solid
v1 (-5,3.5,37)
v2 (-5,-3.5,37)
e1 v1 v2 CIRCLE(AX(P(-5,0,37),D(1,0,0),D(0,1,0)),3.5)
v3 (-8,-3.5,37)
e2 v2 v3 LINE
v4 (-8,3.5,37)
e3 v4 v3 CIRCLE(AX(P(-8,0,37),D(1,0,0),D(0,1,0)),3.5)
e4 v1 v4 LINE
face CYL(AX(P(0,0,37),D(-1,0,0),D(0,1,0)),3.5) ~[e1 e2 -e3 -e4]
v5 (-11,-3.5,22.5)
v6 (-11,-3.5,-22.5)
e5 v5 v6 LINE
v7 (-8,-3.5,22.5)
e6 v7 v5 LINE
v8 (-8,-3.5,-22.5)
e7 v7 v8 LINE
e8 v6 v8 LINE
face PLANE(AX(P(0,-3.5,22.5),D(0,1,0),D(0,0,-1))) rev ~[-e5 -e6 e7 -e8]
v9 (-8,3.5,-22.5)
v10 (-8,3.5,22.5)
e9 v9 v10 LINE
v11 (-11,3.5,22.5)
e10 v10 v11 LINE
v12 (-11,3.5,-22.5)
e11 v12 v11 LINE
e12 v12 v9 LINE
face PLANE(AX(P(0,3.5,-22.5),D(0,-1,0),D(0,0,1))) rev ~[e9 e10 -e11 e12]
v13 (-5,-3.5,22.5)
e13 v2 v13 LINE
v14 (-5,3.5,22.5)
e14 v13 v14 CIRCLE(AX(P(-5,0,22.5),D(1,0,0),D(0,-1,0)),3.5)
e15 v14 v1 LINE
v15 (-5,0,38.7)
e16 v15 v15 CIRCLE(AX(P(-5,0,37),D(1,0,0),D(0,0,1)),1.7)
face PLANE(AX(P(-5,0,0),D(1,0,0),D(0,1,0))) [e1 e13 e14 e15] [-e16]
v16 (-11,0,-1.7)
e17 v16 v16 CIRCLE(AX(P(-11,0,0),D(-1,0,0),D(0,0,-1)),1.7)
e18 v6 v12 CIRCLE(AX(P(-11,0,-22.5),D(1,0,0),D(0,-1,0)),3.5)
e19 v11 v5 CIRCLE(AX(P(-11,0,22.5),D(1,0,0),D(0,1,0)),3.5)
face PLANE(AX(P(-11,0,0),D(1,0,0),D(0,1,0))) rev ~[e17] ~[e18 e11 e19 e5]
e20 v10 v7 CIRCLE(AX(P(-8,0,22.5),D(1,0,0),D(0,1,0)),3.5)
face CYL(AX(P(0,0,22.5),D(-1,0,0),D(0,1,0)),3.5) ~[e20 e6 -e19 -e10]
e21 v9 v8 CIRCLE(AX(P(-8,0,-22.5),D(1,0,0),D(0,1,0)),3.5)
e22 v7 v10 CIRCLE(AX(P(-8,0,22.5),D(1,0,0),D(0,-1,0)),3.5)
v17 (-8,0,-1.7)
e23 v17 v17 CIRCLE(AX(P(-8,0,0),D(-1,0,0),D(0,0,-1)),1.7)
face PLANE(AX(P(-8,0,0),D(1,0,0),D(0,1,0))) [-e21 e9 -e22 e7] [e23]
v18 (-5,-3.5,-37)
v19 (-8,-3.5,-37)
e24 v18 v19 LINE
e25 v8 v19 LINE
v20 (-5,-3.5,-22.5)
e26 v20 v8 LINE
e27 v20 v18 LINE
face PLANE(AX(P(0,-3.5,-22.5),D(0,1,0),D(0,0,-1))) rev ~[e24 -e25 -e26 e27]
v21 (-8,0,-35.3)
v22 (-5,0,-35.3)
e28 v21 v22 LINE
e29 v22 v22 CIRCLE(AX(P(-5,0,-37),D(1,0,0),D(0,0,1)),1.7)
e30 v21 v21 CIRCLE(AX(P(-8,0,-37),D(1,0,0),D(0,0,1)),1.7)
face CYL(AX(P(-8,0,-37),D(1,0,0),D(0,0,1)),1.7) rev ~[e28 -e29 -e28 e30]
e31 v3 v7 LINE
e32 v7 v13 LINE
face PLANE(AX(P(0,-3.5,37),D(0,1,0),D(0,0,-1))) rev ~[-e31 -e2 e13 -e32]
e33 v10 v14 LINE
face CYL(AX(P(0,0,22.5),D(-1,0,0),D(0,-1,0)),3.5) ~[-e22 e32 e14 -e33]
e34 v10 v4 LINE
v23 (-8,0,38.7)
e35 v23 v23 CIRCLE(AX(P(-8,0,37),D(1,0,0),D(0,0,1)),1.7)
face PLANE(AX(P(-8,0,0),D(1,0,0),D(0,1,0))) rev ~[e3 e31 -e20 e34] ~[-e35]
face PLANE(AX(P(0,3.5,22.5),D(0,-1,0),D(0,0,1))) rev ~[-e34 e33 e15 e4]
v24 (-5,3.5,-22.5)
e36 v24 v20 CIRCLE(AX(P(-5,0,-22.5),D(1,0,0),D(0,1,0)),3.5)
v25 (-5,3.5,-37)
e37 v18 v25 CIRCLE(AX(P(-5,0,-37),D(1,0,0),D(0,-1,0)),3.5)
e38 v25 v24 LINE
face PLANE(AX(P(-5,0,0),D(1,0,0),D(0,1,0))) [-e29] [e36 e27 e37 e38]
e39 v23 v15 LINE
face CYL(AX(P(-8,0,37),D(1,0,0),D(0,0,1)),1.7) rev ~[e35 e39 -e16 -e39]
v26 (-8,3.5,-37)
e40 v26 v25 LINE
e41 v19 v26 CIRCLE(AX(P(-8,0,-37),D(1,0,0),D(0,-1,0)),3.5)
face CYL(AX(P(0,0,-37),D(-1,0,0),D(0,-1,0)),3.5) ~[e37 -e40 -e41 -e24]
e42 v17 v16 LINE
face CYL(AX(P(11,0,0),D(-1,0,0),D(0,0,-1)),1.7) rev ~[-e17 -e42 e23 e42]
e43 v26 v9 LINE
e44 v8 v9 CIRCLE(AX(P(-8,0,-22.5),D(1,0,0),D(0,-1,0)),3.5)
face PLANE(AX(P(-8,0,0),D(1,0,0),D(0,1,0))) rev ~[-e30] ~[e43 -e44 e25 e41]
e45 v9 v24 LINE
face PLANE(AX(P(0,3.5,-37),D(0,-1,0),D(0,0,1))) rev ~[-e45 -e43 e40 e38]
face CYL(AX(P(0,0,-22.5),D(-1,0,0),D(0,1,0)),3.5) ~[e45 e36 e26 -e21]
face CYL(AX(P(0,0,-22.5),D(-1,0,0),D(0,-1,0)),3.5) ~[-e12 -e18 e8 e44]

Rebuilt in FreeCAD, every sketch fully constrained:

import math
import FreeCAD as App
import Part
import Sketcher

doc = App.newDocument("Part")
body = doc.addObject("PartDesign::Body", "Body")
body.AllowCompound = True

# Sketch on YZ plane
sketch1 = body.newObject("Sketcher::SketchObject", "Sketch")
sketch1.AttachmentSupport = (doc.getObject("YZ_Plane"), [""])
sketch1.MapMode = "FlatFace"
sketch1.addGeometry([
    Part.LineSegment(App.Vector(-3.5, 22.5, 0), App.Vector(-3.5, -22.5, 0)),
    Part.ArcOfCircle(Part.Circle(App.Vector(0, -22.5, 0), App.Vector(0, 0, 1), 3.5), math.radians(180), math.radians(360)),
    Part.LineSegment(App.Vector(3.5, -22.5, 0), App.Vector(3.5, 22.5, 0)),
    Part.ArcOfCircle(Part.Circle(App.Vector(0, 22.5, 0), App.Vector(0, 0, 1), 3.5), math.radians(0), math.radians(180)),
], False)
sketch1.addConstraint([
    Sketcher.Constraint("Tangent", 0, 2, 1, 1),
    Sketcher.Constraint("Tangent", 1, 2, 2, 1),
    Sketcher.Constraint("Tangent", 2, 2, 3, 1),
    Sketcher.Constraint("Tangent", 3, 2, 0, 1),
    Sketcher.Constraint("Vertical", 0),
    Sketcher.Constraint("Vertical", 2),
    Sketcher.Constraint("Symmetric", 1, 3, 3, 3, -1, 1),
    Sketcher.Constraint("Radius", 1, 3.5),
    Sketcher.Constraint("DistanceY", 0, 2, 0, 1, 45.0),
])
pad1 = body.newObject("PartDesign::Pad", "Pad")
pad1.Profile = sketch1
pad1.Length = 22
pad1.Midplane = True

# Sketch on YZ plane
sketch2 = body.newObject("Sketcher::SketchObject", "Sketch001")
sketch2.AttachmentSupport = (doc.getObject("YZ_Plane"), [""])
sketch2.MapMode = "FlatFace"
sketch2.addGeometry([
    Part.LineSegment(App.Vector(-3.5, 22.5, 0), App.Vector(-3.5, -22.5, 0)),
    Part.ArcOfCircle(Part.Circle(App.Vector(0, -22.5, 0), App.Vector(0, 0, 1), 3.5), math.radians(180), math.radians(360)),
    Part.LineSegment(App.Vector(3.5, -22.5, 0), App.Vector(3.5, 22.5, 0)),
    Part.ArcOfCircle(Part.Circle(App.Vector(0, 22.5, 0), App.Vector(0, 0, 1), 3.5), math.radians(0), math.radians(180)),
], False)
sketch2.addConstraint([
    Sketcher.Constraint("Tangent", 0, 2, 1, 1),
    Sketcher.Constraint("Tangent", 1, 2, 2, 1),
    Sketcher.Constraint("Tangent", 2, 2, 3, 1),
    Sketcher.Constraint("Tangent", 3, 2, 0, 1),
    Sketcher.Constraint("Vertical", 0),
    Sketcher.Constraint("Vertical", 2),
    Sketcher.Constraint("Symmetric", 1, 3, 3, 3, -1, 1),
    Sketcher.Constraint("Radius", 1, 3.5),
    Sketcher.Constraint("DistanceY", 0, 2, 0, 1, 45.0),
])
pocket1 = body.newObject("PartDesign::Pocket", "Pocket")
pocket1.Profile = sketch2
pocket1.Length = 16
pocket1.Midplane = True

# Sketch on YZ plane
sketch3 = body.newObject("Sketcher::SketchObject", "Sketch002")
sketch3.AttachmentSupport = (doc.getObject("YZ_Plane"), [""])
sketch3.MapMode = "FlatFace"
sketch3.addGeometry([
    Part.ArcOfCircle(Part.Circle(App.Vector(0, -37, 0), App.Vector(0, 0, 1), 3.5), math.radians(180), math.radians(360)),  # 0
    Part.LineSegment(App.Vector(3.5, -37, 0), App.Vector(3.5, -22.5, 0)),  # 1
    Part.ArcOfCircle(Part.Circle(App.Vector(0, -22.5, 0), App.Vector(0, 0, 1), 3.5), math.radians(0), math.radians(180)),  # 2
    Part.LineSegment(App.Vector(-3.5, -22.5, 0), App.Vector(-3.5, -37, 0)),  # 3
    Part.LineSegment(App.Vector(-3.5, 37, 0), App.Vector(-3.5, 22.5, 0)),  # 4
    Part.ArcOfCircle(Part.Circle(App.Vector(0, 22.5, 0), App.Vector(0, 0, 1), 3.5), math.radians(180), math.radians(360)),  # 5
    Part.LineSegment(App.Vector(3.5, 22.5, 0), App.Vector(3.5, 37, 0)),  # 6
    Part.ArcOfCircle(Part.Circle(App.Vector(0, 37, 0), App.Vector(0, 0, 1), 3.5), math.radians(0), math.radians(180)),  # 7
], False)
sketch3.addConstraint([
    Sketcher.Constraint("Tangent", 0, 2, 1, 1),
    Sketcher.Constraint("Tangent", 1, 2, 2, 1),
    Sketcher.Constraint("Tangent", 2, 2, 3, 1),
    Sketcher.Constraint("Tangent", 3, 2, 0, 1),
    Sketcher.Constraint("Tangent", 4, 2, 5, 1),
    Sketcher.Constraint("Tangent", 5, 2, 6, 1),
    Sketcher.Constraint("Tangent", 6, 2, 7, 1),
    Sketcher.Constraint("Tangent", 7, 2, 4, 1),
    Sketcher.Constraint("Vertical", 1),
    Sketcher.Constraint("Vertical", 3),
    Sketcher.Constraint("Vertical", 4),
    Sketcher.Constraint("Vertical", 6),
    Sketcher.Constraint("Equal", 2, 5),
    Sketcher.Constraint("Symmetric", 2, 3, 5, 3, -1, 1),
    Sketcher.Constraint("Symmetric", 0, 3, 7, 3, -1),
    Sketcher.Constraint("Radius", 0, 3.5),
    Sketcher.Constraint("DistanceY", 2, 3, 5, 3, 45.0),
    Sketcher.Constraint("DistanceY", 1, 1, 1, 2, 14.5),
])
pad2 = body.newObject("PartDesign::Pad", "Pad001")
pad2.Profile = sketch3
pad2.Length = 16
pad2.Midplane = True

# Sketch on YZ plane
sketch4 = body.newObject("Sketcher::SketchObject", "Sketch003")
sketch4.AttachmentSupport = (doc.getObject("YZ_Plane"), [""])
sketch4.MapMode = "FlatFace"
sketch4.addGeometry([
    Part.ArcOfCircle(Part.Circle(App.Vector(0, -37, 0), App.Vector(0, 0, 1), 3.5), math.radians(180), math.radians(360)),  # 0
    Part.LineSegment(App.Vector(3.5, -37, 0), App.Vector(3.5, -22.5, 0)),  # 1
    Part.ArcOfCircle(Part.Circle(App.Vector(0, -22.5, 0), App.Vector(0, 0, 1), 3.5), math.radians(0), math.radians(180)),  # 2
    Part.LineSegment(App.Vector(-3.5, -22.5, 0), App.Vector(-3.5, -37, 0)),  # 3
    Part.LineSegment(App.Vector(-3.5, 37, 0), App.Vector(-3.5, 22.5, 0)),  # 4
    Part.ArcOfCircle(Part.Circle(App.Vector(0, 22.5, 0), App.Vector(0, 0, 1), 3.5), math.radians(180), math.radians(360)),  # 5
    Part.LineSegment(App.Vector(3.5, 22.5, 0), App.Vector(3.5, 37, 0)),  # 6
    Part.ArcOfCircle(Part.Circle(App.Vector(0, 37, 0), App.Vector(0, 0, 1), 3.5), math.radians(0), math.radians(180)),  # 7
], False)
sketch4.addConstraint([
    Sketcher.Constraint("Tangent", 0, 2, 1, 1),
    Sketcher.Constraint("Tangent", 1, 2, 2, 1),
    Sketcher.Constraint("Tangent", 2, 2, 3, 1),
    Sketcher.Constraint("Tangent", 3, 2, 0, 1),
    Sketcher.Constraint("Tangent", 4, 2, 5, 1),
    Sketcher.Constraint("Tangent", 5, 2, 6, 1),
    Sketcher.Constraint("Tangent", 6, 2, 7, 1),
    Sketcher.Constraint("Tangent", 7, 2, 4, 1),
    Sketcher.Constraint("Vertical", 1),
    Sketcher.Constraint("Vertical", 3),
    Sketcher.Constraint("Vertical", 4),
    Sketcher.Constraint("Vertical", 6),
    Sketcher.Constraint("Equal", 2, 5),
    Sketcher.Constraint("Symmetric", 2, 3, 5, 3, -1, 1),
    Sketcher.Constraint("Symmetric", 0, 3, 7, 3, -1),
    Sketcher.Constraint("Radius", 0, 3.5),
    Sketcher.Constraint("DistanceY", 2, 3, 5, 3, 45.0),
    Sketcher.Constraint("DistanceY", 1, 1, 1, 2, 14.5),
])
pocket2 = body.newObject("PartDesign::Pocket", "Pocket001")
pocket2.Profile = sketch4
pocket2.Length = 10
pocket2.Midplane = True

# Sketch on YZ plane
sketch5 = body.newObject("Sketcher::SketchObject", "Sketch004")
sketch5.AttachmentSupport = (doc.getObject("YZ_Plane"), [""])
sketch5.MapMode = "FlatFace"
sketch5.AttachmentOffset = App.Placement(App.Vector(0, 0, -8), App.Rotation())
sketch5.addGeometry([
    Part.Circle(App.Vector(0, -37, 0), App.Vector(0, 0, 1), 1.7),
    Part.Circle(App.Vector(0, 37, 0), App.Vector(0, 0, 1), 1.7),
], False)
sketch5.addConstraint([
    Sketcher.Constraint("Equal", 0, 1),
    Sketcher.Constraint("Symmetric", 0, 3, 1, 3, -1, 1),
    Sketcher.Constraint("PointOnObject", 0, 3, -2),
    Sketcher.Constraint("Diameter", 0, 3.4),
    Sketcher.Constraint("DistanceY", 0, 3, -1, 1, 37.0),
])
doc.recompute()
hole = body.newObject("PartDesign::Hole", "Hole")
hole.Profile = sketch5
hole.ThreadType = "None"
hole.Diameter = 3.4
hole.DepthType = "ThroughAll"
hole.Reversed = True

# Sketch on YZ plane
sketch6 = body.newObject("Sketcher::SketchObject", "Sketch005")
sketch6.AttachmentSupport = (doc.getObject("YZ_Plane"), [""])
sketch6.MapMode = "FlatFace"
sketch6.AttachmentOffset = App.Placement(App.Vector(0, 0, 11), App.Rotation())
sketch6.addGeometry(Part.Circle(App.Vector(0, 0, 0), App.Vector(0, 0, 1), 1.7), False)
sketch6.addConstraint([
    Sketcher.Constraint("Coincident", 0, 3, -1, 1),
    Sketcher.Constraint("Diameter", 0, 3.4),
])
doc.recompute()
hole2 = body.newObject("PartDesign::Hole", "Hole001")
hole2.Profile = sketch6
hole2.ThreadType = "None"
hole2.Diameter = 3.4
hole2.DepthType = "ThroughAll"

# Sketch on YZ plane
sketch7 = body.newObject("Sketcher::SketchObject", "Sketch006")
sketch7.AttachmentSupport = (doc.getObject("YZ_Plane"), [""])
sketch7.MapMode = "FlatFace"
sketch7.AttachmentOffset = App.Placement(App.Vector(0, 0, 11), App.Rotation())
sketch7.addGeometry([
    Part.LineSegment(App.Vector(3.5, -37, 0), App.Vector(3.5, 37, 0)),
    Part.ArcOfCircle(Part.Circle(App.Vector(0, 37, 0), App.Vector(0, 0, 1), 3.5), math.radians(0), math.radians(180)),
    Part.LineSegment(App.Vector(-3.5, 37, 0), App.Vector(-3.5, -37, 0)),
    Part.ArcOfCircle(Part.Circle(App.Vector(0, -37, 0), App.Vector(0, 0, 1), 3.5), math.radians(180), math.radians(360)),
], False)
sketch7.addConstraint([
    Sketcher.Constraint("Tangent", 0, 2, 1, 1),
    Sketcher.Constraint("Tangent", 1, 2, 2, 1),
    Sketcher.Constraint("Tangent", 2, 2, 3, 1),
    Sketcher.Constraint("Tangent", 3, 2, 0, 1),
    Sketcher.Constraint("Vertical", 0),
    Sketcher.Constraint("Vertical", 2),
    Sketcher.Constraint("Symmetric", 1, 3, 3, 3, -1, 1),
    Sketcher.Constraint("Radius", 1, 3.5),
    Sketcher.Constraint("DistanceY", 0, 1, 0, 2, 74.0),
])
pocket3 = body.newObject("PartDesign::Pocket", "Pocket002")
pocket3.Profile = sketch7
pocket3.Length = 10

doc.recompute()
